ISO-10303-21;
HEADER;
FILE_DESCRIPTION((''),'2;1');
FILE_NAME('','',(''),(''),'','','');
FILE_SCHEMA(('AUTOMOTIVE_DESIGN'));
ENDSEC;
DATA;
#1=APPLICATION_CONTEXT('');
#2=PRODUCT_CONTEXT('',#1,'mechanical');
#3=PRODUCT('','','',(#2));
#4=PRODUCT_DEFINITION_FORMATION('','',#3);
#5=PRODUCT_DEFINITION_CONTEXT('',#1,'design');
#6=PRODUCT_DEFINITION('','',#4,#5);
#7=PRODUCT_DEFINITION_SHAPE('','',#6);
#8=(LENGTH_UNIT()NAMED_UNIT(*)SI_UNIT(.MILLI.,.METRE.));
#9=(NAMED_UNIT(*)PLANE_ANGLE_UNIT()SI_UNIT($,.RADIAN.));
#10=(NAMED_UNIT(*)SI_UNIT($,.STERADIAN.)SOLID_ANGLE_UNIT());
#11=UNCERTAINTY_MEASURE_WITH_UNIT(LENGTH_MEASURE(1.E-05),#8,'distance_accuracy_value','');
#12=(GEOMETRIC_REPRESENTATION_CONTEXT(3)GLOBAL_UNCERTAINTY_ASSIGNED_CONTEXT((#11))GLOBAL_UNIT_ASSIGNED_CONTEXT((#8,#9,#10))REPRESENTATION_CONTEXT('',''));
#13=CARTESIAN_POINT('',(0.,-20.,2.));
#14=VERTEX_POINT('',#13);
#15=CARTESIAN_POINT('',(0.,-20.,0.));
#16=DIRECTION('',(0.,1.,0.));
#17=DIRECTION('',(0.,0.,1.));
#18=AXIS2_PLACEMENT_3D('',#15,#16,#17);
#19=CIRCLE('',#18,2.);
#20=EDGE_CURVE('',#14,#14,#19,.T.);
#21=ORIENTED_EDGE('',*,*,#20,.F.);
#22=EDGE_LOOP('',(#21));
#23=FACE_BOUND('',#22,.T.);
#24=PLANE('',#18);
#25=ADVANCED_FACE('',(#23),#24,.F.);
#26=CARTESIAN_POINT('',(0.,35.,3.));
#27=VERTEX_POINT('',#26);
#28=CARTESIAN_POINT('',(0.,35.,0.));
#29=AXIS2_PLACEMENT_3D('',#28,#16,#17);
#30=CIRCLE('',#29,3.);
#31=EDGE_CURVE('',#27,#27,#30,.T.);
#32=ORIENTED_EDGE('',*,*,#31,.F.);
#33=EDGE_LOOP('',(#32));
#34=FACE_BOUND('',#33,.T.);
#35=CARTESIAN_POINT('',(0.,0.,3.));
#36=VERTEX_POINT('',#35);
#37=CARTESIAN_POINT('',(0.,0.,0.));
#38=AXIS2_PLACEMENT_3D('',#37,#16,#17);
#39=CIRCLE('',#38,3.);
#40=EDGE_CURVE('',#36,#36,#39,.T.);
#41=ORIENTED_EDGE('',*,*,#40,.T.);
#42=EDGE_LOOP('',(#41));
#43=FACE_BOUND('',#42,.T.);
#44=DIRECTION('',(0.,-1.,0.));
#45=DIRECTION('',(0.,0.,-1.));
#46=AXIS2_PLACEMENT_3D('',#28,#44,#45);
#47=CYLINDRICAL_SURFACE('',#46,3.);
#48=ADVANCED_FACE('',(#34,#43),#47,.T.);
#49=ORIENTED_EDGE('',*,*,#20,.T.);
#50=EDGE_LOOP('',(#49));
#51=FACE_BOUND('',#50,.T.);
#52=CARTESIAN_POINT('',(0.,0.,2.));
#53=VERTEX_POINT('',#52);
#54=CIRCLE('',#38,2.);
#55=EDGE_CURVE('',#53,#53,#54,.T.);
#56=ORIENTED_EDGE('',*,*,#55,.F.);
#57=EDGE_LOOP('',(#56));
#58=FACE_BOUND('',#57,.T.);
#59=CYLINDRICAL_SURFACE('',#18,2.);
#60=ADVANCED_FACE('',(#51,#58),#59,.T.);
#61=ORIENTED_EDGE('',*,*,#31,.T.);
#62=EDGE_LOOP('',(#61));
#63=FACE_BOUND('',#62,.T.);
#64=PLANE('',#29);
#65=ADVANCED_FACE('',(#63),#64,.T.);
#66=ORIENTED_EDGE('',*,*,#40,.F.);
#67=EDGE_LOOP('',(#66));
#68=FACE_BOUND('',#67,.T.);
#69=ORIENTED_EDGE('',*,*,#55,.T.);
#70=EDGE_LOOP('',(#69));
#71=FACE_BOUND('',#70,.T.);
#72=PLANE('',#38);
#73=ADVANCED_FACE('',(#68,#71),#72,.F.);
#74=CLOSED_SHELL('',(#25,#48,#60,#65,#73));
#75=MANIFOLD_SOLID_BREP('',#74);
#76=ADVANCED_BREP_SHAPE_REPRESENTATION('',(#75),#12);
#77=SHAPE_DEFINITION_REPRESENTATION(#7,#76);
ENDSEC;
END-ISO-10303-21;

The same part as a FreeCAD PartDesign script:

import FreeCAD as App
import Part
import Sketcher

doc = App.newDocument("Part")
params = doc.addObject("Spreadsheet::Sheet", "Params")
for row, (alias, value) in enumerate([
    ("sketch1_diameter", "6 mm"),
    ("pad1_length", "35 mm"),
    ("sketch2_diameter", "4 mm"),
    ("pad2_length", "20 mm"),
], start=1):
    params.set(f"A{row}", alias)
    params.set(f"B{row}", "=" + value)
    params.setAlias(f"B{row}", alias)

body = doc.addObject("PartDesign::Body", "Body")

# Sketch on XZ plane
sketch1 = body.newObject("Sketcher::SketchObject", "Sketch")
sketch1.AttachmentSupport = (doc.getObject("XZ_Plane"), [""])
sketch1.MapMode = "FlatFace"
sketch1.addGeometry(Part.Circle(App.Vector(0, 0, 0), App.Vector(0, 0, 1), 3), False)
sketch1.addConstraint(Sketcher.Constraint("Coincident", 0, 3, -1, 1))
sketch1.addConstraint(Sketcher.Constraint("Diameter", 0, 6.0))
sketch1.setExpression("Constraints[1]", "Params.sketch1_diameter")
pad1 = body.newObject("PartDesign::Pad", "Pad")
pad1.Profile = sketch1
pad1.setExpression("Length", "Params.pad1_length")
pad1.Reversed = True

# Sketch on XZ plane
sketch2 = body.newObject("Sketcher::SketchObject", "Sketch001")
sketch2.AttachmentSupport = (doc.getObject("XZ_Plane"), [""])
sketch2.MapMode = "FlatFace"
sketch2.addGeometry(Part.Circle(App.Vector(0, 0, 0), App.Vector(0, 0, 1), 2), False)
sketch2.addConstraint(Sketcher.Constraint("Coincident", 0, 3, -1, 1))
sketch2.addConstraint(Sketcher.Constraint("Diameter", 0, 4.0))
sketch2.setExpression("Constraints[1]", "Params.sketch2_diameter")
pad2 = body.newObject("PartDesign::Pad", "Pad001")
pad2.Profile = sketch2
pad2.setExpression("Length", "Params.pad2_length")

doc.recompute()
